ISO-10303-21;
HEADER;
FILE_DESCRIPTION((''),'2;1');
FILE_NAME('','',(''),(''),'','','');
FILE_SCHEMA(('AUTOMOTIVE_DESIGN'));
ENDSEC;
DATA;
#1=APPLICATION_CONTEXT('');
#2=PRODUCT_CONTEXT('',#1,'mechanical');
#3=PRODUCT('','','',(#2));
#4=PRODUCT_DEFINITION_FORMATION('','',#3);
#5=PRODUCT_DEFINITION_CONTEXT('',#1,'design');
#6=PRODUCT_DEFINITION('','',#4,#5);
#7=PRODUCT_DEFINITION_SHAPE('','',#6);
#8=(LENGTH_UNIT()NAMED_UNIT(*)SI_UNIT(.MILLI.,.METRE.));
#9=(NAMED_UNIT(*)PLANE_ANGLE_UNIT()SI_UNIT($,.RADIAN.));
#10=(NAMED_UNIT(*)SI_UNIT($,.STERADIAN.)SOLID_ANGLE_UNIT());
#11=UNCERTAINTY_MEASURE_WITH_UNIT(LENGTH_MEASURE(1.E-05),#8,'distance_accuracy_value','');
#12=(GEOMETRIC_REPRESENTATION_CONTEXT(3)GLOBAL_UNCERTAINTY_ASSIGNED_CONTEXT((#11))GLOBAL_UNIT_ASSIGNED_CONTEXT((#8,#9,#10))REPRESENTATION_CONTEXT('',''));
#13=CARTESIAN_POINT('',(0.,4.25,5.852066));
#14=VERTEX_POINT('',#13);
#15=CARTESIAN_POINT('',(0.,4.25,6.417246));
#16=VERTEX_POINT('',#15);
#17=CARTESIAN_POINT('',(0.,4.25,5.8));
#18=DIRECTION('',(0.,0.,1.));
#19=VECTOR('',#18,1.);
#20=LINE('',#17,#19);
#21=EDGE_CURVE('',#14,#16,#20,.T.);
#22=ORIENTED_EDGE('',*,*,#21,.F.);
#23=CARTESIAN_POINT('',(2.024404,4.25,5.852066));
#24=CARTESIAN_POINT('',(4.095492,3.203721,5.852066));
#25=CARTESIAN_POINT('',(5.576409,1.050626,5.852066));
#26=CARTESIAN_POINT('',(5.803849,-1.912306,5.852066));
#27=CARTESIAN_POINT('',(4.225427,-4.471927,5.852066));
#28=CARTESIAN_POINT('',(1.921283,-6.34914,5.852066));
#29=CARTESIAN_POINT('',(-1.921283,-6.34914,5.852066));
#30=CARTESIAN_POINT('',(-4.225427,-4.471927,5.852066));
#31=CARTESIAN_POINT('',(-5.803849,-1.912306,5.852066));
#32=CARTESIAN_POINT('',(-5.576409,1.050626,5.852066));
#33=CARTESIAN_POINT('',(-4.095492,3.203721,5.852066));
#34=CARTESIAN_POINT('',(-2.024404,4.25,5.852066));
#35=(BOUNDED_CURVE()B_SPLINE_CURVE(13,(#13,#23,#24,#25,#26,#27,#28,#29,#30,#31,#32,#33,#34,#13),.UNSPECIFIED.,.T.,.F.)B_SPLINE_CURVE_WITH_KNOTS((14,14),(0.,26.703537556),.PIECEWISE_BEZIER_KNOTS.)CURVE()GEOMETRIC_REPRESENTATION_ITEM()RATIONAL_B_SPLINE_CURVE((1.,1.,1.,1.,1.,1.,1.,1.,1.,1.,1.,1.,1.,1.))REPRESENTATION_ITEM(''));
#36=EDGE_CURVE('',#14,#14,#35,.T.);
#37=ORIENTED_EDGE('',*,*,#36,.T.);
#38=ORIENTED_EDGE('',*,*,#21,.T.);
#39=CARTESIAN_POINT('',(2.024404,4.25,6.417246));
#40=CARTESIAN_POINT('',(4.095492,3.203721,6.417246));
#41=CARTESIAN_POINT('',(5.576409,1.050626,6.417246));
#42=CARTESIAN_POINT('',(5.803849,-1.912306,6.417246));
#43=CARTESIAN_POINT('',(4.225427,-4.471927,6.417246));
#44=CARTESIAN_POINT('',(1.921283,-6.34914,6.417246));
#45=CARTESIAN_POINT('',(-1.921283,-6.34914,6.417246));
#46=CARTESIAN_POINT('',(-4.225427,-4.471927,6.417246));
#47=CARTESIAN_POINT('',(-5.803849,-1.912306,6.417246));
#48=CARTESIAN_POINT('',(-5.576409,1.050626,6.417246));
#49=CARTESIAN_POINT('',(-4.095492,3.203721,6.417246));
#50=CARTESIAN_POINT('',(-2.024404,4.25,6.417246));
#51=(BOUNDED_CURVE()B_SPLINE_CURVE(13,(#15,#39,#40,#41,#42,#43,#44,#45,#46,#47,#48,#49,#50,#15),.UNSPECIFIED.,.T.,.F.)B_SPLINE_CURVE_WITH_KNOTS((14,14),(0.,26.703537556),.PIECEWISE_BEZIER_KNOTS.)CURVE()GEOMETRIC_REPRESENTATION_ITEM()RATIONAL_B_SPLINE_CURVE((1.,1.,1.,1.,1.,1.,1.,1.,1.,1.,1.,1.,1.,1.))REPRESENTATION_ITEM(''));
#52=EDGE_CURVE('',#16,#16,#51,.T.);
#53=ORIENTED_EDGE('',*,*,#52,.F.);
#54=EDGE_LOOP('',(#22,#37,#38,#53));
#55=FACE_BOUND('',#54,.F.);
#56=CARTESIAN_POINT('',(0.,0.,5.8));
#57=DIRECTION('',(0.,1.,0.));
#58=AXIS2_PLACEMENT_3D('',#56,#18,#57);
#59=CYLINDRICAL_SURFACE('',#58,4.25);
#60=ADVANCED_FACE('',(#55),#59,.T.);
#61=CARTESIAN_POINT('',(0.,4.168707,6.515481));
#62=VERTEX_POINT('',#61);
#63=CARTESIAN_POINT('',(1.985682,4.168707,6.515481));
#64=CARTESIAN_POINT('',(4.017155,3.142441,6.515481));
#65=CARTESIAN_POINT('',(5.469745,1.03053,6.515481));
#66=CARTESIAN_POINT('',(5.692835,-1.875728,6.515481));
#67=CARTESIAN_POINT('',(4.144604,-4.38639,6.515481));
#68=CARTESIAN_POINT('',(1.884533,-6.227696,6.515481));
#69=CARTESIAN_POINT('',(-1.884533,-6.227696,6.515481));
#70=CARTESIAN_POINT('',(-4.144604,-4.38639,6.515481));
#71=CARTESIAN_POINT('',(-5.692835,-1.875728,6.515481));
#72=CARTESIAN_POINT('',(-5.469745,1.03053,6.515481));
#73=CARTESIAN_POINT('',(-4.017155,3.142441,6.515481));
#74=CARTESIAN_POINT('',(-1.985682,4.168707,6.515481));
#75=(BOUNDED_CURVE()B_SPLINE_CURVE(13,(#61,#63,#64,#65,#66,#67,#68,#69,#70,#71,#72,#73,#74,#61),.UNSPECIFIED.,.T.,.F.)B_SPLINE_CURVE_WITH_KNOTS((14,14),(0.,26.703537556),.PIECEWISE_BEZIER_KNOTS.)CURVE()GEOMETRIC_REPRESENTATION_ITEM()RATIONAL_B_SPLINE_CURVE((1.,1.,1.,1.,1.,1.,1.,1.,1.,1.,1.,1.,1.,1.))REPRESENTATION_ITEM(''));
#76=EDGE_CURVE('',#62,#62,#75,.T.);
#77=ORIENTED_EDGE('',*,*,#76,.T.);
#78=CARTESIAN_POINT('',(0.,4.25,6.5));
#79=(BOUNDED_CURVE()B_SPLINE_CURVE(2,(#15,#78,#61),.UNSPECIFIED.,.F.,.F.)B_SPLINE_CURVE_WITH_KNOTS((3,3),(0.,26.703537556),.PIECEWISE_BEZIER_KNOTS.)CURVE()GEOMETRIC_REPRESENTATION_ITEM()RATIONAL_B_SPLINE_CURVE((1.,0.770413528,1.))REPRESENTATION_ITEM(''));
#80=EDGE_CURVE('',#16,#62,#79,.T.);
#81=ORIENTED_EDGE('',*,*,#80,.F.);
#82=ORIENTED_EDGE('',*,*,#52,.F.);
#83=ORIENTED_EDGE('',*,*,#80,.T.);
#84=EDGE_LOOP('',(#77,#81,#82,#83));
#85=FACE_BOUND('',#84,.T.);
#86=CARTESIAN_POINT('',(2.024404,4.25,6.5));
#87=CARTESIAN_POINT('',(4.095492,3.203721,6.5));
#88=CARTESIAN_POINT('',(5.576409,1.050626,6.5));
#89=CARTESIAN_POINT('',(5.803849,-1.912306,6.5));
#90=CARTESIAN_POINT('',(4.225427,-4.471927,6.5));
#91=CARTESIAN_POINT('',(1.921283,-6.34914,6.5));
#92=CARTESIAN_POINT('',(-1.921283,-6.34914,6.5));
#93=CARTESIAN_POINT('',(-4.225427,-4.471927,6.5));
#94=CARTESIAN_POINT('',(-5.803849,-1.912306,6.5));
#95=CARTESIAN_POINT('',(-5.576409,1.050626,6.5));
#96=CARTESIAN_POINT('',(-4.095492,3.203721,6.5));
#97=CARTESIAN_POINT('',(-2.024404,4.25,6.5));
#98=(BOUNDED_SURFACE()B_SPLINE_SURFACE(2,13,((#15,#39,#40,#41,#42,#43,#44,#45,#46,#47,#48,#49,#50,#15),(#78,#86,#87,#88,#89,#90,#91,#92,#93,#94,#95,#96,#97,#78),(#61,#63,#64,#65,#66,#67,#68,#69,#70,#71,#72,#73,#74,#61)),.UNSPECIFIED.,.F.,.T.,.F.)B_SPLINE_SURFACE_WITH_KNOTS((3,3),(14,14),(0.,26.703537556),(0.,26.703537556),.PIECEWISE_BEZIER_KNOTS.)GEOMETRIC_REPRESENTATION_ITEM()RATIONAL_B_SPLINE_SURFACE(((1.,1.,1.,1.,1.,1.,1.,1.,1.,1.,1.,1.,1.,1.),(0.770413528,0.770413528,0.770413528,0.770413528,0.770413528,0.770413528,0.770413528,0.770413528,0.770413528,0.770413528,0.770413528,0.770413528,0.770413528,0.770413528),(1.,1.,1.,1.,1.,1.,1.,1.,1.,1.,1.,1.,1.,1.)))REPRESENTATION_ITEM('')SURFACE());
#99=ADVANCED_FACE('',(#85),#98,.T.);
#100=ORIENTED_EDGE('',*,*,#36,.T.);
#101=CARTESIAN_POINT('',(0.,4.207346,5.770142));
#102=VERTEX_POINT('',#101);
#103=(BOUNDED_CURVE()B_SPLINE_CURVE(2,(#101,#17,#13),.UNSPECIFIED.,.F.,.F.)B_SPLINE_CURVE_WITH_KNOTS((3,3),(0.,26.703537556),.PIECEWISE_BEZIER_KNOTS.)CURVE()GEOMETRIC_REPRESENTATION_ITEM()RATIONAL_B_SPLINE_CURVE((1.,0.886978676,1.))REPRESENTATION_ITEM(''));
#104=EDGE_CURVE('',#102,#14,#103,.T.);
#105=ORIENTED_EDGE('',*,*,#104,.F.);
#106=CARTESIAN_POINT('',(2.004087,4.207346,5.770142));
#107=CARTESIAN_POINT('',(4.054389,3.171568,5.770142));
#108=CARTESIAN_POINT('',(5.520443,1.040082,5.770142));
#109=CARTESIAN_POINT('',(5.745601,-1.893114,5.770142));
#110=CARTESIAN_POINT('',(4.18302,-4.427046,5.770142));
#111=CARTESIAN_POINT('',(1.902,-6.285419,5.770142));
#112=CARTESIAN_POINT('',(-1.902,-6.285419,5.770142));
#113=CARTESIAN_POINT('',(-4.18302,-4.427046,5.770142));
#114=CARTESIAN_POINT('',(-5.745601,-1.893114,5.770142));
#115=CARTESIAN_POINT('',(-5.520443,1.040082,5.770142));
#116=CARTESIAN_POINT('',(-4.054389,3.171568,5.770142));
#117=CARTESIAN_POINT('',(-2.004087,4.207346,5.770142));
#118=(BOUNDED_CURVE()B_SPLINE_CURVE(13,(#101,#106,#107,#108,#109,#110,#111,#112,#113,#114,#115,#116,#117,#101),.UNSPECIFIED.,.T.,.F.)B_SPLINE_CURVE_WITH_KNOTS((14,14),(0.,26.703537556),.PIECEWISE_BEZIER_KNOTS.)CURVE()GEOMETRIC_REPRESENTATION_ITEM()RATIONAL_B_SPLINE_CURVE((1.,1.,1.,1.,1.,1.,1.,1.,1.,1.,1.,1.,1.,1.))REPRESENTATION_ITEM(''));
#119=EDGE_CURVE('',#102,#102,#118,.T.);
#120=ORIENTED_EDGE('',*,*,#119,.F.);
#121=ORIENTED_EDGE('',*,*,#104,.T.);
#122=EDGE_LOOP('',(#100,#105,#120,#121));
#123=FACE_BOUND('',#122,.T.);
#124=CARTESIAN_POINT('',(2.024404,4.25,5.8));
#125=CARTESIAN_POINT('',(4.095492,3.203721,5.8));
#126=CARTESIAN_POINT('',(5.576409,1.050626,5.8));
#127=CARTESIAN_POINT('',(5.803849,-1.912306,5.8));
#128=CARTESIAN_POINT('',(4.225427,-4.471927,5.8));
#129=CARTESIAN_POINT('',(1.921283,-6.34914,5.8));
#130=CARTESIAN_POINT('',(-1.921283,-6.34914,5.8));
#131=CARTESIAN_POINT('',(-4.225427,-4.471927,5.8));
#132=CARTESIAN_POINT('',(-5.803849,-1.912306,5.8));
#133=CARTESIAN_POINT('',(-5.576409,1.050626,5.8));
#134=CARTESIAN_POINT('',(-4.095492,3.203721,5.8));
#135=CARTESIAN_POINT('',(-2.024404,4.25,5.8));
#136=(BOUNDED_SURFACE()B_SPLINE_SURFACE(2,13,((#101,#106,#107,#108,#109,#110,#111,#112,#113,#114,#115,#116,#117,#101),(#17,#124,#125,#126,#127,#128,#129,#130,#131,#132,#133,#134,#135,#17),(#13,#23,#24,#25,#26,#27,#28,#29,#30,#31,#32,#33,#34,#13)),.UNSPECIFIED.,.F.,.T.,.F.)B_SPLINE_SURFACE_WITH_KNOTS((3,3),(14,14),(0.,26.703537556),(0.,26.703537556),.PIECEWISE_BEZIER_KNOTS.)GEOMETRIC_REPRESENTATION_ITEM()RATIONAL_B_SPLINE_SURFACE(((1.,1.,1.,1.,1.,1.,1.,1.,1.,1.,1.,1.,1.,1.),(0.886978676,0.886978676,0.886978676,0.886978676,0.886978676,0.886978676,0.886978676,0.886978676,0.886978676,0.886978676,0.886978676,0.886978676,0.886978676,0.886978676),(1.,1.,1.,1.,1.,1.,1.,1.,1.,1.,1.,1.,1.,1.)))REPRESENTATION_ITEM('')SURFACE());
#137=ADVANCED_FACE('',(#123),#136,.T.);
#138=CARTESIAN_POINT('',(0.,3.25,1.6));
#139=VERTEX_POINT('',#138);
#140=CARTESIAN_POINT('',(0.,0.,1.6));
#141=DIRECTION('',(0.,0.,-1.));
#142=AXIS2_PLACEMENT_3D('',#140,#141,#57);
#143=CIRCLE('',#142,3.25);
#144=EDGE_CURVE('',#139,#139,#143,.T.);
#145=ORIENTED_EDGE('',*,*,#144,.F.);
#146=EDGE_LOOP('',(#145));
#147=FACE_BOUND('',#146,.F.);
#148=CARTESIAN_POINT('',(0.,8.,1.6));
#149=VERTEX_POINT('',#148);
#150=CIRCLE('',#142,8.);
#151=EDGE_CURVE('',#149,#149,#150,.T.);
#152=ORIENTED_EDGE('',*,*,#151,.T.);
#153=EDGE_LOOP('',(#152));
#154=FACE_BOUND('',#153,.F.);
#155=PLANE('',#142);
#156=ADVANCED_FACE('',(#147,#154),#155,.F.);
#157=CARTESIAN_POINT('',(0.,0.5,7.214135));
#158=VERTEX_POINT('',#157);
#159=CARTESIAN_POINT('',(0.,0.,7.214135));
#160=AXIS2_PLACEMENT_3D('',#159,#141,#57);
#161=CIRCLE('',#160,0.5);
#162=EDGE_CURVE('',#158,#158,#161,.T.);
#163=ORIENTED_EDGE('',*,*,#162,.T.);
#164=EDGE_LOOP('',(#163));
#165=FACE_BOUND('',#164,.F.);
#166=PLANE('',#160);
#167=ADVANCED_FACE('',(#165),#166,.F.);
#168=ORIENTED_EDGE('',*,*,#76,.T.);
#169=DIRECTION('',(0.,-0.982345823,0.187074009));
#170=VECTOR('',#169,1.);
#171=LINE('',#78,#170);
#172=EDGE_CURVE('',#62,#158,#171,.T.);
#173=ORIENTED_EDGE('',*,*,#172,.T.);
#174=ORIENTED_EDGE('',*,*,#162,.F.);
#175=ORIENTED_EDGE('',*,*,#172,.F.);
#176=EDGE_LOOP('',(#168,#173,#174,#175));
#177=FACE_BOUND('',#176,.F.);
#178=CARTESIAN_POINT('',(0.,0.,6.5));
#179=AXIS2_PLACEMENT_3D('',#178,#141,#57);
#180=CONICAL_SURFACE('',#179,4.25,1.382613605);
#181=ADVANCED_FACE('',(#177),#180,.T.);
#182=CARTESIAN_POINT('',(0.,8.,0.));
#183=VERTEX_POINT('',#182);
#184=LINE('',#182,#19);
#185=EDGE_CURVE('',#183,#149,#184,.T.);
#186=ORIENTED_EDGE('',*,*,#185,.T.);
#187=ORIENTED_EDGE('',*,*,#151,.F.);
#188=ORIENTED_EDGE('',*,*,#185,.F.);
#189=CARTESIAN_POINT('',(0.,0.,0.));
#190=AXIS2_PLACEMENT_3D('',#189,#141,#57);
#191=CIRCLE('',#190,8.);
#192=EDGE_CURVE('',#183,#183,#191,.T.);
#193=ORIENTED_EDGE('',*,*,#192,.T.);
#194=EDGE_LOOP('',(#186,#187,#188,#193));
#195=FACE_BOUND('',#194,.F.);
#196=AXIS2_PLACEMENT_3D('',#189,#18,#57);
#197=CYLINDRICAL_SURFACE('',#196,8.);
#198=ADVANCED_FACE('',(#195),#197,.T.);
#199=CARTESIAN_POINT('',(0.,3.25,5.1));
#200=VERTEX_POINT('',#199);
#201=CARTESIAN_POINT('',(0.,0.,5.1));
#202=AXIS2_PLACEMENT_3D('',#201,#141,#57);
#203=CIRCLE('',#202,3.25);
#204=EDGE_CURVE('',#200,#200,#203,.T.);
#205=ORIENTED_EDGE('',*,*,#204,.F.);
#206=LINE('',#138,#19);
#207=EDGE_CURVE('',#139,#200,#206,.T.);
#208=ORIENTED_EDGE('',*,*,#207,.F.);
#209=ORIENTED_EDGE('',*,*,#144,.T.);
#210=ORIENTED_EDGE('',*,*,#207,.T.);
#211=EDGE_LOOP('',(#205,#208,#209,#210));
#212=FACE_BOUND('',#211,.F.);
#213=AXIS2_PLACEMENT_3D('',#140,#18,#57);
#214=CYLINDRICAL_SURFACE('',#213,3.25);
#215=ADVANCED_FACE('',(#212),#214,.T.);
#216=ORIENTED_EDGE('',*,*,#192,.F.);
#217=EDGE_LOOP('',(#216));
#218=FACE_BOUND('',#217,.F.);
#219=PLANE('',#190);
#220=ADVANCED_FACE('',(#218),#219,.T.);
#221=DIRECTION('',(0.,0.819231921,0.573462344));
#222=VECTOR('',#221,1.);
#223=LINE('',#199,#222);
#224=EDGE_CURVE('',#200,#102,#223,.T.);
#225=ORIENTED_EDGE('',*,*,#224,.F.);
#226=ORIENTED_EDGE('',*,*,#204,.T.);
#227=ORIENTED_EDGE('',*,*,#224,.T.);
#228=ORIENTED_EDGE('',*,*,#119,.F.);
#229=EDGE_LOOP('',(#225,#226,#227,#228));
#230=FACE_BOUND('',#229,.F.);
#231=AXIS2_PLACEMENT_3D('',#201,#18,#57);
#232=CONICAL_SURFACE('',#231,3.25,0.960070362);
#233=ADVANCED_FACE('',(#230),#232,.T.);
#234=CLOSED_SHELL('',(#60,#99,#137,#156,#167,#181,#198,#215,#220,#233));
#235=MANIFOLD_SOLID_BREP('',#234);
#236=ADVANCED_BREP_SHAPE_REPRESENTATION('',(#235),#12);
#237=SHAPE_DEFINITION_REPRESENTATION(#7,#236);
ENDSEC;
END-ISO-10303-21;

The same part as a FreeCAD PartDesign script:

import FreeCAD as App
import Part
import Sketcher
from FreeCAD import Vector


def edges_at(feature, points):
    """Names of the edges that pass closest to the given points."""
    edges = feature.Shape.Edges
    near = lambda p: min(range(len(edges)), key=lambda i: edges[i].distToShape(Part.Vertex(*p))[0])
    return sorted({f"Edge{near(p) + 1}" for p in points})

doc = App.newDocument("Part")
params = doc.addObject("Spreadsheet::Sheet", "Params")
for row, (alias, value) in enumerate([
    ("sketch1_width", "8 mm"),
    ("sketch1_width2", "0.5 mm"),
    ("sketch1_height", "1.6 mm"),
    ("sketch1_height2", "3.5 mm"),
    ("sketch1_height3", "0.7 mm"),
    ("revolution_angle", "360 deg"),
    ("fillet_radius", "0.1 mm"),
], start=1):
    params.set(f"A{row}", alias)
    params.set(f"B{row}", "=" + value)
    params.setAlias(f"B{row}", alias)

body = doc.addObject("PartDesign::Body", "Body")

# Sketch on YZ plane
sketch1 = body.newObject("Sketcher::SketchObject", "Sketch")
sketch1.AttachmentSupport = (doc.getObject("YZ_Plane"), [""])
sketch1.MapMode = "FlatFace"
sketch1.addGeometry(Part.LineSegment(Vector(0, 7.2, 0), Vector(0, 0, 0)), False)
sketch1.addGeometry(Part.LineSegment(Vector(0, 0, 0), Vector(8, 0, 0)), False)
sketch1.addGeometry(Part.LineSegment(Vector(8, 0, 0), Vector(8, 1.6, 0)), False)
sketch1.addGeometry(Part.LineSegment(Vector(8, 1.6, 0), Vector(3.2, 1.6, 0)), False)
sketch1.addGeometry(Part.LineSegment(Vector(3.2, 1.6, 0), Vector(3.2, 5.1, 0)), False)
sketch1.addGeometry(Part.LineSegment(Vector(3.2, 5.1, 0), Vector(4.2, 5.8, 0)), False)
sketch1.addGeometry(Part.LineSegment(Vector(4.2, 5.8, 0), Vector(4.2, 6.5, 0)), False)
sketch1.addGeometry(Part.LineSegment(Vector(4.2, 6.5, 0), Vector(0.5, 7.2, 0)), False)
sketch1.addGeometry(Part.LineSegment(Vector(0.5, 7.2, 0), Vector(0, 7.2, 0)), False)
sketch1.addConstraint(Sketcher.Constraint("Coincident", 0, 2, 1, 1))
sketch1.addConstraint(Sketcher.Constraint("Coincident", 1, 2, 2, 1))
sketch1.addConstraint(Sketcher.Constraint("Coincident", 2, 2, 3, 1))
sketch1.addConstraint(Sketcher.Constraint("Coincident", 3, 2, 4, 1))
sketch1.addConstraint(Sketcher.Constraint("Coincident", 4, 2, 5, 1))
sketch1.addConstraint(Sketcher.Constraint("Coincident", 5, 2, 6, 1))
sketch1.addConstraint(Sketcher.Constraint("Coincident", 6, 2, 7, 1))
sketch1.addConstraint(Sketcher.Constraint("Coincident", 7, 2, 8, 1))
sketch1.addConstraint(Sketcher.Constraint("Coincident", 8, 2, 0, 1))
sketch1.addConstraint(Sketcher.Constraint("Vertical", 0))
sketch1.addConstraint(Sketcher.Constraint("Horizontal", 1))
sketch1.addConstraint(Sketcher.Constraint("Vertical", 2))
sketch1.addConstraint(Sketcher.Constraint("Horizontal", 3))
sketch1.addConstraint(Sketcher.Constraint("Vertical", 4))
sketch1.addConstraint(Sketcher.Constraint("Vertical", 6))
sketch1.addConstraint(Sketcher.Constraint("Horizontal", 8))
sketch1.addConstraint(Sketcher.Constraint("Coincident", 0, 2, -1, 1))
sketch1.addConstraint(Sketcher.Constraint("DistanceX", 1, 1, 1, 2, 8.0))
sketch1.addConstraint(Sketcher.Constraint("DistanceX", 8, 2, 8, 1, 0.5))
sketch1.addConstraint(Sketcher.Constraint("DistanceY", 2, 1, 2, 2, 1.6))
sketch1.addConstraint(Sketcher.Constraint("DistanceY", 4, 1, 4, 2, 3.5))
sketch1.addConstraint(Sketcher.Constraint("DistanceY", 6, 1, 6, 2, 0.7))
sketch1.addConstraint(Sketcher.Constraint("DistanceX", 4, 2, 5, 2, 1.0))
sketch1.addConstraint(Sketcher.Constraint("DistanceX", 3, 2, 3, 1, 4.75))
sketch1.addConstraint(Sketcher.Constraint("DistanceY", -1, 1, 5, 2, 5.8))
sketch1.addConstraint(Sketcher.Constraint("DistanceY", 0, 2, 0, 1, 7.214135))
sketch1.setExpression("Constraints[17]", "Params.sketch1_width")
sketch1.setExpression("Constraints[18]", "Params.sketch1_width2")
sketch1.setExpression("Constraints[19]", "Params.sketch1_height")
sketch1.setExpression("Constraints[20]", "Params.sketch1_height2")
sketch1.setExpression("Constraints[21]", "Params.sketch1_height3")
revolution = body.newObject("PartDesign::Revolution", "Revolution")
revolution.Profile = sketch1
revolution.ReferenceAxis = (sketch1, ["V_Axis"])
revolution.setExpression("Angle", "Params.revolution_angle")
doc.recompute()

fillet = body.newObject("PartDesign::Fillet", "Fillet")
fillet.Base = (revolution, edges_at(revolution, [(0, -4.25, 6.5), (0, -4.25, 5.8)]))
fillet.setExpression("Radius", "Params.fillet_radius")

doc.recompute()
